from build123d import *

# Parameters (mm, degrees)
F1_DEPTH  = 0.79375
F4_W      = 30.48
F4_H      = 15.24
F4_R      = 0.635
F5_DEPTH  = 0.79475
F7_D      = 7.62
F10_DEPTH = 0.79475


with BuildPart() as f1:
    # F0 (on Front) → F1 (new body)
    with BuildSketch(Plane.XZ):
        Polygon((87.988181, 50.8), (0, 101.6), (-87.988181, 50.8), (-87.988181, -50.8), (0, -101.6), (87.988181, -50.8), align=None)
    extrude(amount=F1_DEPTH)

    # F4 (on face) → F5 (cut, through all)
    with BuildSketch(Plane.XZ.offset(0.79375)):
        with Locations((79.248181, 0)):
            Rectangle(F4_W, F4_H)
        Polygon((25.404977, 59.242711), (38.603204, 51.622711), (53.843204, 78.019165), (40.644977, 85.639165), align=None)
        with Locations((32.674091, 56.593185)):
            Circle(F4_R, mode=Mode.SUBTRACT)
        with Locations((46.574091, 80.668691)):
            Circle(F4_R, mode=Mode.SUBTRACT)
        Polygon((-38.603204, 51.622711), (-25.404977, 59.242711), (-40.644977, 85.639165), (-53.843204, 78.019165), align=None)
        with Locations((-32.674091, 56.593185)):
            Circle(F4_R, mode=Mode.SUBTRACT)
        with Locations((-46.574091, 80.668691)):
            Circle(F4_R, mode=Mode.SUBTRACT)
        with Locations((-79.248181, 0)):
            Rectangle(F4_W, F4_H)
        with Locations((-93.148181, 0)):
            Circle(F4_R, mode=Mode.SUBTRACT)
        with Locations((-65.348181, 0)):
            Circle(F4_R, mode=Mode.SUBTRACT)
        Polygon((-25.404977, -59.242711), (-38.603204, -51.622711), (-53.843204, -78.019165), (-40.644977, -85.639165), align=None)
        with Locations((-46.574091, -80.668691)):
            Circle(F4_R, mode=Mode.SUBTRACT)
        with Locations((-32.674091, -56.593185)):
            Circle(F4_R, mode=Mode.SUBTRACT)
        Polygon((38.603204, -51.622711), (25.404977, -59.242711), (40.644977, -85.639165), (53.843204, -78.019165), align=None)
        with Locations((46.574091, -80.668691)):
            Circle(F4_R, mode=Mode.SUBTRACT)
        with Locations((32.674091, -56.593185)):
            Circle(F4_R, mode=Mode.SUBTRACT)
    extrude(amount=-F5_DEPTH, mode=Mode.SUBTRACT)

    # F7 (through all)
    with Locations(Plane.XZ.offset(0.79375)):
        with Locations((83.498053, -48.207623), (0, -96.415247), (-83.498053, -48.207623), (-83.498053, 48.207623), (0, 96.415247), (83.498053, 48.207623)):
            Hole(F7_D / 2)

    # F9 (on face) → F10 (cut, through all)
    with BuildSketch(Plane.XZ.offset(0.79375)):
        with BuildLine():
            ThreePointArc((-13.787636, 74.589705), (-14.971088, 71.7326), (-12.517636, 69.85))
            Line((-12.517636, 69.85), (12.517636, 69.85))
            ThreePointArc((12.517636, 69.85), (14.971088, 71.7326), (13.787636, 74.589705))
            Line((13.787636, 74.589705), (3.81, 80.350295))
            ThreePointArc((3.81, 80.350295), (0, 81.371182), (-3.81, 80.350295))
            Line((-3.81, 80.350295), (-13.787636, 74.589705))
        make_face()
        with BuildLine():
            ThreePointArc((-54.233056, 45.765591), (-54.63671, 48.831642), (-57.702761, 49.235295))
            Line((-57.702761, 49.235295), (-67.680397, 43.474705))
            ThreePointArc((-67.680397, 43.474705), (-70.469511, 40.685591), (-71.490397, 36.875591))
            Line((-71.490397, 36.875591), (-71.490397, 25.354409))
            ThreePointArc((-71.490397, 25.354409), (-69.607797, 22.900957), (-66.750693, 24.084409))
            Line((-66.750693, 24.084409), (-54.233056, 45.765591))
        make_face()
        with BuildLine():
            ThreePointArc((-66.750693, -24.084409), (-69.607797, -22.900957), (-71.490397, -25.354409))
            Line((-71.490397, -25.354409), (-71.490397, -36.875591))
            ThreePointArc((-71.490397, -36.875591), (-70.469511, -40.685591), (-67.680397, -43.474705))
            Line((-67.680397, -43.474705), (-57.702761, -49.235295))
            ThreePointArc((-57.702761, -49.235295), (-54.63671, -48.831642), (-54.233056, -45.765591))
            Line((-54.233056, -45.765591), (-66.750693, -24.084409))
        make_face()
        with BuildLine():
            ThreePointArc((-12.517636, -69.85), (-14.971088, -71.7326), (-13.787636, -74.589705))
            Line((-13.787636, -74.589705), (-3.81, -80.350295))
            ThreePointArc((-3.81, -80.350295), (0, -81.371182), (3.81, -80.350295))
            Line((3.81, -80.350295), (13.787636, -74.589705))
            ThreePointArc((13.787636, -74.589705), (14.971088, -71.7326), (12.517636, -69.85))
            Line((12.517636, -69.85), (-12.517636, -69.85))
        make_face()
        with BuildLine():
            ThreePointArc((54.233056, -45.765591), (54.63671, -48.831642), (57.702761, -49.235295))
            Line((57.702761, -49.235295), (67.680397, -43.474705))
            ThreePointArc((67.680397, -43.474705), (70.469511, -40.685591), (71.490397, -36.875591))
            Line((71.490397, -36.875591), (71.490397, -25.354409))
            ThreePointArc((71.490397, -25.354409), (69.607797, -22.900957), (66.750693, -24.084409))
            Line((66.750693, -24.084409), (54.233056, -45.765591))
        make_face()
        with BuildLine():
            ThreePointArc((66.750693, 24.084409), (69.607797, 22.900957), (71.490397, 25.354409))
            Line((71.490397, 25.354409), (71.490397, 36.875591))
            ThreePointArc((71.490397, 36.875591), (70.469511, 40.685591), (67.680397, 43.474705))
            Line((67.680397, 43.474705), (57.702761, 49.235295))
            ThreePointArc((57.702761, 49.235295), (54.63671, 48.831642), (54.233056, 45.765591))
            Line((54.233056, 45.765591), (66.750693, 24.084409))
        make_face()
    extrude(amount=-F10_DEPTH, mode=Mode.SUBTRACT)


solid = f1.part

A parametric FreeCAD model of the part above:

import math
import FreeCAD as App
import Part
import Sketcher
Q = App.Units.Quantity

doc = App.newDocument("Part")
body = doc.addObject("PartDesign::Body", "Body")
body.AllowCompound = True

# Sketch on XZ plane
sketch1 = body.newObject("Sketcher::SketchObject", "Sketch")
sketch1.AttachmentSupport = (doc.getObject("XZ_Plane"), [""])
sketch1.MapMode = "FlatFace"
sketch1.addGeometry([
    Part.LineSegment(App.Vector(88, 51, 0), App.Vector(0, 102, 0)),  # 0
    Part.LineSegment(App.Vector(0, 102, 0), App.Vector(-88, 51, 0)),  # 1
    Part.LineSegment(App.Vector(-88, 51, 0), App.Vector(-88, -51, 0)),  # 2
    Part.LineSegment(App.Vector(-88, -51, 0), App.Vector(0, -102, 0)),  # 3
    Part.LineSegment(App.Vector(0, -102, 0), App.Vector(88, -51, 0)),  # 4
    Part.LineSegment(App.Vector(88, -51, 0), App.Vector(88, 51, 0)),  # 5
], False)
sketch1.addConstraint([
    Sketcher.Constraint("Coincident", 0, 2, 1, 1),
    Sketcher.Constraint("Coincident", 1, 2, 2, 1),
    Sketcher.Constraint("Coincident", 2, 2, 3, 1),
    Sketcher.Constraint("Coincident", 3, 2, 4, 1),
    Sketcher.Constraint("Coincident", 4, 2, 5, 1),
    Sketcher.Constraint("Coincident", 5, 2, 0, 1),
    Sketcher.Constraint("Vertical", 2),
    Sketcher.Constraint("Vertical", 5),
    Sketcher.Constraint("Symmetric", 0, 2, 3, 2, -1, 1),
    Sketcher.Constraint("Symmetric", 1, 2, 4, 2, -1, 1),
    Sketcher.Constraint("PointOnObject", 0, 2, -2),
    Sketcher.Constraint("Parallel", 0, 3),
    Sketcher.Constraint("Horizontal", 2, 2, 4, 2),
    Sketcher.Constraint("DistanceY", 2, 2, 2, 1, Q("4 in")),
    Sketcher.Constraint("Distance", 0, Q("4 in")),
    Sketcher.Constraint("DistanceY", -1, 1, 0, 2, Q("4 in")),
])
pad1 = body.newObject("PartDesign::Pad", "Pad")
pad1.Profile = sketch1
pad1.Length = Q("0.03125 in")

# Sketch on XZ plane
sketch2 = body.newObject("Sketcher::SketchObject", "Sketch001")
sketch2.AttachmentSupport = (doc.getObject("XZ_Plane"), [""])
sketch2.MapMode = "FlatFace"
sketch2.AttachmentOffset = App.Placement(App.Vector(0, 0, 0.03125 * 25.4), App.Rotation())
sketch2.addGeometry([
    Part.LineSegment(App.Vector(64, 7.6, 0), App.Vector(64, -7.6, 0)),  # 0
    Part.LineSegment(App.Vector(64, -7.6, 0), App.Vector(94.5, -7.6, 0)),  # 1
    Part.LineSegment(App.Vector(94.5, -7.6, 0), App.Vector(94.5, 7.6, 0)),  # 2
    Part.LineSegment(App.Vector(94.5, 7.6, 0), App.Vector(64, 7.6, 0)),  # 3
    Part.LineSegment(App.Vector(25.4, 59.2, 0), App.Vector(38.6, 51.6, 0)),  # 4
    Part.LineSegment(App.Vector(38.6, 51.6, 0), App.Vector(53.8, 78, 0)),  # 5
    Part.LineSegment(App.Vector(53.8, 78, 0), App.Vector(40.6, 85.6, 0)),  # 6
    Part.LineSegment(App.Vector(40.6, 85.6, 0), App.Vector(25.4, 59.2, 0)),  # 7
    Part.Circle(App.Vector(32.7, 56.6, 0), App.Vector(0, 0, 1), 0.6),  # 8
    Part.Circle(App.Vector(46.6, 80.7, 0), App.Vector(0, 0, 1), 0.6),  # 9
    Part.LineSegment(App.Vector(-38.6, 51.6, 0), App.Vector(-25.4, 59.2, 0)),  # 10
    Part.LineSegment(App.Vector(-25.4, 59.2, 0), App.Vector(-40.6, 85.6, 0)),  # 11
    Part.LineSegment(App.Vector(-40.6, 85.6, 0), App.Vector(-53.8, 78, 0)),  # 12
    Part.LineSegment(App.Vector(-53.8, 78, 0), App.Vector(-38.6, 51.6, 0)),  # 13
    Part.Circle(App.Vector(-32.7, 56.6, 0), App.Vector(0, 0, 1), 0.6),  # 14
    Part.Circle(App.Vector(-46.6, 80.7, 0), App.Vector(0, 0, 1), 0.6),  # 15
    Part.LineSegment(App.Vector(-94.5, 7.6, 0), App.Vector(-94.5, -7.6, 0)),  # 16
    Part.LineSegment(App.Vector(-94.5, -7.6, 0), App.Vector(-64, -7.6, 0)),  # 17
    Part.LineSegment(App.Vector(-64, -7.6, 0), App.Vector(-64, 7.6, 0)),  # 18
    Part.LineSegment(App.Vector(-64, 7.6, 0), App.Vector(-94.5, 7.6, 0)),  # 19
    Part.Circle(App.Vector(-93.1, 0, 0), App.Vector(0, 0, 1), 0.6),  # 20
    Part.Circle(App.Vector(-65.3, 0, 0), App.Vector(0, 0, 1), 0.6),  # 21
    Part.LineSegment(App.Vector(-25.4, -59.2, 0), App.Vector(-38.6, -51.6, 0)),  # 22
    Part.LineSegment(App.Vector(-38.6, -51.6, 0), App.Vector(-53.8, -78, 0)),  # 23
    Part.LineSegment(App.Vector(-53.8, -78, 0), App.Vector(-40.6, -85.6, 0)),  # 24
    Part.LineSegment(App.Vector(-40.6, -85.6, 0), App.Vector(-25.4, -59.2, 0)),  # 25
    Part.Circle(App.Vector(-46.6, -80.7, 0), App.Vector(0, 0, 1), 0.6),  # 26
    Part.Circle(App.Vector(-32.7, -56.6, 0), App.Vector(0, 0, 1), 0.6),  # 27
    Part.LineSegment(App.Vector(38.6, -51.6, 0), App.Vector(25.4, -59.2, 0)),  # 28
    Part.LineSegment(App.Vector(25.4, -59.2, 0), App.Vector(40.6, -85.6, 0)),  # 29
    Part.LineSegment(App.Vector(40.6, -85.6, 0), App.Vector(53.8, -78, 0)),  # 30
    Part.LineSegment(App.Vector(53.8, -78, 0), App.Vector(38.6, -51.6, 0)),  # 31
    Part.Circle(App.Vector(46.6, -80.7, 0), App.Vector(0, 0, 1), 0.6),  # 32
    Part.Circle(App.Vector(32.7, -56.6, 0), App.Vector(0, 0, 1), 0.6),  # 33
], False)
sketch2.addConstraint([
    Sketcher.Constraint("Coincident", 0, 2, 1, 1),
    Sketcher.Constraint("Coincident", 1, 2, 2, 1),
    Sketcher.Constraint("Coincident", 2, 2, 3, 1),
    Sketcher.Constraint("Coincident", 3, 2, 0, 1),
    Sketcher.Constraint("Coincident", 4, 2, 5, 1),
    Sketcher.Constraint("Coincident", 5, 2, 6, 1),
    Sketcher.Constraint("Coincident", 6, 2, 7, 1),
    Sketcher.Constraint("Coincident", 7, 2, 4, 1),
    Sketcher.Constraint("Coincident", 10, 2, 11, 1),
    Sketcher.Constraint("Coincident", 11, 2, 12, 1),
    Sketcher.Constraint("Coincident", 12, 2, 13, 1),
    Sketcher.Constraint("Coincident", 13, 2, 10, 1),
    Sketcher.Constraint("Coincident", 16, 2, 17, 1),
    Sketcher.Constraint("Coincident", 17, 2, 18, 1),
    Sketcher.Constraint("Coincident", 18, 2, 19, 1),
    Sketcher.Constraint("Coincident", 19, 2, 16, 1),
    Sketcher.Constraint("Coincident", 22, 2, 23, 1),
    Sketcher.Constraint("Coincident", 23, 2, 24, 1),
    Sketcher.Constraint("Coincident", 24, 2, 25, 1),
    Sketcher.Constraint("Coincident", 25, 2, 22, 1),
    Sketcher.Constraint("Coincident", 28, 2, 29, 1),
    Sketcher.Constraint("Coincident", 29, 2, 30, 1),
    Sketcher.Constraint("Coincident", 30, 2, 31, 1),
    Sketcher.Constraint("Coincident", 31, 2, 28, 1),
    Sketcher.Constraint("Vertical", 0),
    Sketcher.Constraint("Horizontal", 1),
    Sketcher.Constraint("Vertical", 2),
    Sketcher.Constraint("Horizontal", 3),
    Sketcher.Constraint("Vertical", 16),
    Sketcher.Constraint("Horizontal", 17),
    Sketcher.Constraint("Vertical", 18),
    Sketcher.Constraint("Horizontal", 19),
    Sketcher.Constraint("Equal", 8, 9),
    Sketcher.Constraint("Equal", 9, 14),
    Sketcher.Constraint("Equal", 14, 15),
    Sketcher.Constraint("Equal", 15, 20),
    Sketcher.Constraint("Equal", 20, 21),
    Sketcher.Constraint("Equal", 21, 26),
    Sketcher.Constraint("Equal", 26, 27),
    Sketcher.Constraint("Equal", 27, 32),
    Sketcher.Constraint("Equal", 32, 33),
    Sketcher.Constraint("Symmetric", 9, 3, 26, 3, -1, 1),
    Sketcher.Constraint("Symmetric", 8, 3, 27, 3, -1, 1),
    Sketcher.Constraint("Symmetric", 15, 3, 32, 3, -1, 1),
    Sketcher.Constraint("Symmetric", 14, 3, 33, 3, -1, 1),
    Sketcher.Constraint("Symmetric", 2, 2, 16, 2, -1, 1),
    Sketcher.Constraint("Symmetric", 0, 2, 18, 2, -1, 1),
    Sketcher.Constraint("Symmetric", 4, 2, 22, 2, -1, 1),
    Sketcher.Constraint("Symmetric", 5, 2, 23, 2, -1, 1),
    Sketcher.Constraint("Symmetric", 6, 2, 24, 2, -1, 1),
    Sketcher.Constraint("Symmetric", 7, 2, 25, 2, -1, 1),
    Sketcher.Constraint("Symmetric", 10, 2, 28, 2, -1, 1),
    Sketcher.Constraint("Symmetric", 11, 2, 29, 2, -1, 1),
    Sketcher.Constraint("Symmetric", 12, 2, 30, 2, -1, 1),
    Sketcher.Constraint("Symmetric", 13, 2, 31, 2, -1, 1),
    Sketcher.Constraint("Symmetric", 8, 3, 14, 3, -2),
    Sketcher.Constraint("Symmetric", 9, 3, 15, 3, -2),
    Sketcher.Constraint("Symmetric", 7, 2, 10, 2, -2),
    Sketcher.Constraint("Symmetric", 6, 2, 11, 2, -2),
    Sketcher.Constraint("Symmetric", 5, 2, 12, 2, -2),
    Sketcher.Constraint("Symmetric", 4, 2, 13, 2, -2),
    Sketcher.Constraint("PointOnObject", 20, 3, -1),
    Sketcher.Constraint("PointOnObject", 21, 3, -1),
    Sketcher.Constraint("Perpendicular", 4, 5),
    Sketcher.Constraint("Perpendicular", 5, 6),
    Sketcher.Constraint("Perpendicular", 6, 7),
    Sketcher.Constraint("Horizontal", 1, 2, 16, 2),
    Sketcher.Constraint("Diameter", 8, Q("0.05 in")),
    Sketcher.Constraint("DistanceX", 1, 1, 1, 2, Q("1.2 in")),
    Sketcher.Constraint("DistanceY", 0, 2, 0, 1, Q("0.6 in")),
    Sketcher.Constraint("Angle", 4, Q("-30 deg")),
    Sketcher.Constraint("Distance", 4, Q("0.6 in")),
    Sketcher.Constraint("Distance", 5, Q("1.2 in")),
    Sketcher.Constraint("DistanceX", 8, 3, 9, 3, Q("13.9 mm")),
    Sketcher.Constraint("DistanceX", 20, 3, 21, 3, Q("27.8 mm")),
    Sketcher.Constraint("DistanceX", 16, 2, 20, 3, Q("1.34 mm")),
    Sketcher.Constraint("DistanceX", -1, 1, 8, 3, Q("32.674091 mm")),
    Sketcher.Constraint("DistanceY", -1, 1, 9, 3, Q("80.668691 mm")),
    Sketcher.Constraint("DistanceX", 20, 3, -1, 1, Q("93.148181 mm")),
    Sketcher.Constraint("DistanceY", -1, 1, 4, 2, Q("51.622711 mm")),
    Sketcher.Constraint("DistanceY", 27, 3, 14, 3, Q("113.18637 mm")),
    Sketcher.Constraint("DistanceX", 10, 2, 4, 2, Q("64.008181 mm")),
])
pocket1 = body.newObject("PartDesign::Pocket", "Pocket")
pocket1.Profile = sketch2
pocket1.Type = "ThroughAll"

# Sketch on XZ plane
sketch3 = body.newObject("Sketcher::SketchObject", "Sketch002")
sketch3.AttachmentSupport = (doc.getObject("XZ_Plane"), [""])
sketch3.MapMode = "FlatFace"
sketch3.AttachmentOffset = App.Placement(App.Vector(0, 0, 0.03125 * 25.4), App.Rotation())
sketch3.addGeometry([
    Part.Circle(App.Vector(83.5, -48.2, 0), App.Vector(0, 0, 1), 3.8),  # 0
    Part.Circle(App.Vector(0, -96.4, 0), App.Vector(0, 0, 1), 3.8),  # 1
    Part.Circle(App.Vector(-83.5, -48.2, 0), App.Vector(0, 0, 1), 3.8),  # 2
    Part.Circle(App.Vector(-83.5, 48.2, 0), App.Vector(0, 0, 1), 3.8),  # 3
    Part.Circle(App.Vector(0, 96.4, 0), App.Vector(0, 0, 1), 3.8),  # 4
    Part.Circle(App.Vector(83.5, 48.2, 0), App.Vector(0, 0, 1), 3.8),  # 5
], False)
sketch3.addConstraint([
    Sketcher.Constraint("Equal", 0, 1),
    Sketcher.Constraint("Equal", 1, 2),
    Sketcher.Constraint("Equal", 2, 3),
    Sketcher.Constraint("Equal", 3, 4),
    Sketcher.Constraint("Equal", 4, 5),
    Sketcher.Constraint("Symmetric", 0, 3, 3, 3, -1, 1),
    Sketcher.Constraint("Symmetric", 1, 3, 4, 3, -1, 1),
    Sketcher.Constraint("Symmetric", 2, 3, 5, 3, -1, 1),
    Sketcher.Constraint("Symmetric", 0, 3, 2, 3, -2),
    Sketcher.Constraint("PointOnObject", 1, 3, -2),
    Sketcher.Constraint("Diameter", 0, Q("0.3 in")),
    Sketcher.Constraint("DistanceY", 1, 3, 3, 3, Q("144.62287 mm")),
    Sketcher.Constraint("DistanceX", -1, 1, 0, 3, Q("83.498053 mm")),
    Sketcher.Constraint("DistanceY", 0, 3, -1, 1, Q("48.207623 mm")),
])
doc.recompute()
hole = body.newObject("PartDesign::Hole", "Hole")
hole.Profile = sketch3
hole.ThreadType = "None"
hole.Diameter = Q("0.3 in")
hole.DepthType = "ThroughAll"

# Sketch on XZ plane
sketch4 = body.newObject("Sketcher::SketchObject", "Sketch003")
sketch4.AttachmentSupport = (doc.getObject("XZ_Plane"), [""])
sketch4.MapMode = "FlatFace"
sketch4.AttachmentOffset = App.Placement(App.Vector(0, 0, 0.03125 * 25.4), App.Rotation())
sketch4.addGeometry([
    Part.ArcOfCircle(Part.Circle(App.Vector(-12.5, 72.4, 0), App.Vector(0, 0, 1), 2.5), math.radians(120), math.radians(270)),  # 0
    Part.LineSegment(App.Vector(-12.5, 69.8, 0), App.Vector(12.5, 69.8, 0)),  # 1
    Part.ArcOfCircle(Part.Circle(App.Vector(12.5, 72.4, 0), App.Vector(0, 0, 1), 2.5), math.radians(-90), math.radians(60)),  # 2
    Part.LineSegment(App.Vector(13.8, 74.6, 0), App.Vector(3.8, 80.4, 0)),  # 3
    Part.ArcOfCircle(Part.Circle(App.Vector(0, 73.8, 0), App.Vector(0, 0, 1), 7.6), math.radians(60), math.radians(120)),  # 4
    Part.LineSegment(App.Vector(-3.8, 80.4, 0), App.Vector(-13.8, 74.6, 0)),  # 5
    Part.ArcOfCircle(Part.Circle(App.Vector(-56.4, 47, 0), App.Vector(0, 0, 1), 2.5), math.radians(-30), math.radians(120)),  # 6
    Part.LineSegment(App.Vector(-57.7, 49.2, 0), App.Vector(-67.7, 43.5, 0)),  # 7
    Part.ArcOfCircle(Part.Circle(App.Vector(-63.9, 36.9, 0), App.Vector(0, 0, 1), 7.6), math.radians(120), math.radians(180)),  # 8
    Part.LineSegment(App.Vector(-71.5, 36.9, 0), App.Vector(-71.5, 25.4, 0)),  # 9
    Part.ArcOfCircle(Part.Circle(App.Vector(-69, 25.4, 0), App.Vector(0, 0, 1), 2.5), math.radians(180), math.radians(330)),  # 10
    Part.LineSegment(App.Vector(-66.8, 24.1, 0), App.Vector(-54.2, 45.8, 0)),  # 11
    Part.ArcOfCircle(Part.Circle(App.Vector(-69, -25.4, 0), App.Vector(0, 0, 1), 2.5), math.radians(30), math.radians(180)),  # 12
    Part.LineSegment(App.Vector(-71.5, -25.4, 0), App.Vector(-71.5, -36.9, 0)),  # 13
    Part.ArcOfCircle(Part.Circle(App.Vector(-63.9, -36.9, 0), App.Vector(0, 0, 1), 7.6), math.radians(180), math.radians(240)),  # 14
    Part.LineSegment(App.Vector(-67.7, -43.5, 0), App.Vector(-57.7, -49.2, 0)),  # 15
    Part.ArcOfCircle(Part.Circle(App.Vector(-56.4, -47, 0), App.Vector(0, 0, 1), 2.5), math.radians(-120), math.radians(30)),  # 16
    Part.LineSegment(App.Vector(-54.2, -45.8, 0), App.Vector(-66.8, -24.1, 0)),  # 17
    Part.ArcOfCircle(Part.Circle(App.Vector(-12.5, -72.4, 0), App.Vector(0, 0, 1), 2.5), math.radians(90), math.radians(240)),  # 18
    Part.LineSegment(App.Vector(-13.8, -74.6, 0), App.Vector(-3.8, -80.4, 0)),  # 19
    Part.ArcOfCircle(Part.Circle(App.Vector(0, -73.8, 0), App.Vector(0, 0, 1), 7.6), math.radians(-120), math.radians(-60)),  # 20
    Part.LineSegment(App.Vector(3.8, -80.4, 0), App.Vector(13.8, -74.6, 0)),  # 21
    Part.ArcOfCircle(Part.Circle(App.Vector(12.5, -72.4, 0), App.Vector(0, 0, 1), 2.5), math.radians(-60), math.radians(90)),  # 22
    Part.LineSegment(App.Vector(12.5, -69.8, 0), App.Vector(-12.5, -69.8, 0)),  # 23
    Part.ArcOfCircle(Part.Circle(App.Vector(56.4, -47, 0), App.Vector(0, 0, 1), 2.5), math.radians(150), math.radians(300)),  # 24
    Part.LineSegment(App.Vector(57.7, -49.2, 0), App.Vector(67.7, -43.5, 0)),  # 25
    Part.ArcOfCircle(Part.Circle(App.Vector(63.9, -36.9, 0), App.Vector(0, 0, 1), 7.6), math.radians(-60), math.radians(0)),  # 26
    Part.LineSegment(App.Vector(71.5, -36.9, 0), App.Vector(71.5, -25.4, 0)),  # 27
    Part.ArcOfCircle(Part.Circle(App.Vector(69, -25.4, 0), App.Vector(0, 0, 1), 2.5), math.radians(0), math.radians(150)),  # 28
    Part.LineSegment(App.Vector(66.8, -24.1, 0), App.Vector(54.2, -45.8, 0)),  # 29
    Part.ArcOfCircle(Part.Circle(App.Vector(69, 25.4, 0), App.Vector(0, 0, 1), 2.5), math.radians(-150), math.radians(0)),  # 30
    Part.LineSegment(App.Vector(71.5, 25.4, 0), App.Vector(71.5, 36.9, 0)),  # 31
    Part.ArcOfCircle(Part.Circle(App.Vector(63.9, 36.9, 0), App.Vector(0, 0, 1), 7.6), math.radians(0), math.radians(60)),  # 32
    Part.LineSegment(App.Vector(67.7, 43.5, 0), App.Vector(57.7, 49.2, 0)),  # 33
    Part.ArcOfCircle(Part.Circle(App.Vector(56.4, 47, 0), App.Vector(0, 0, 1), 2.5), math.radians(60), math.radians(210)),  # 34
    Part.LineSegment(App.Vector(54.2, 45.8, 0), App.Vector(66.8, 24.1, 0)),  # 35
], False)
sketch4.addConstraint([
    Sketcher.Constraint("Tangent", 0, 2, 1, 1),
    Sketcher.Constraint("Tangent", 1, 2, 2, 1),
    Sketcher.Constraint("Tangent", 2, 2, 3, 1),
    Sketcher.Constraint("Tangent", 3, 2, 4, 1),
    Sketcher.Constraint("Tangent", 4, 2, 5, 1),
    Sketcher.Constraint("Tangent", 5, 2, 0, 1),
    Sketcher.Constraint("Tangent", 6, 2, 7, 1),
    Sketcher.Constraint("Tangent", 7, 2, 8, 1),
    Sketcher.Constraint("Tangent", 8, 2, 9, 1),
    Sketcher.Constraint("Tangent", 9, 2, 10, 1),
    Sketcher.Constraint("Tangent", 10, 2, 11, 1),
    Sketcher.Constraint("Tangent", 11, 2, 6, 1),
    Sketcher.Constraint("Tangent", 12, 2, 13, 1),
    Sketcher.Constraint("Tangent", 13, 2, 14, 1),
    Sketcher.Constraint("Tangent", 14, 2, 15, 1),
    Sketcher.Constraint("Tangent", 15, 2, 16, 1),
    Sketcher.Constraint("Tangent", 16, 2, 17, 1),
    Sketcher.Constraint("Tangent", 17, 2, 12, 1),
    Sketcher.Constraint("Tangent", 18, 2, 19, 1),
    Sketcher.Constraint("Tangent", 19, 2, 20, 1),
    Sketcher.Constraint("Tangent", 20, 2, 21, 1),
    Sketcher.Constraint("Tangent", 21, 2, 22, 1),
    Sketcher.Constraint("Tangent", 22, 2, 23, 1),
    Sketcher.Constraint("Tangent", 23, 2, 18, 1),
    Sketcher.Constraint("Tangent", 24, 2, 25, 1),
    Sketcher.Constraint("Tangent", 25, 2, 26, 1),
    Sketcher.Constraint("Tangent", 26, 2, 27, 1),
    Sketcher.Constraint("Tangent", 27, 2, 28, 1),
    Sketcher.Constraint("Tangent", 28, 2, 29, 1),
    Sketcher.Constraint("Tangent", 29, 2, 24, 1),
    Sketcher.Constraint("Tangent", 30, 2, 31, 1),
    Sketcher.Constraint("Tangent", 31, 2, 32, 1),
    Sketcher.Constraint("Tangent", 32, 2, 33, 1),
    Sketcher.Constraint("Tangent", 33, 2, 34, 1),
    Sketcher.Constraint("Tangent", 34, 2, 35, 1),
    Sketcher.Constraint("Tangent", 35, 2, 30, 1),
    Sketcher.Constraint("Horizontal", 1),
    Sketcher.Constraint("Vertical", 9),
    Sketcher.Constraint("Vertical", 13),
    Sketcher.Constraint("Horizontal", 23),
    Sketcher.Constraint("Vertical", 27),
    Sketcher.Constraint("Vertical", 31),
    Sketcher.Constraint("Equal", 0, 2),
    Sketcher.Constraint("Equal", 2, 6),
    Sketcher.Constraint("Equal", 6, 10),
    Sketcher.Constraint("Equal", 10, 12),
    Sketcher.Constraint("Equal", 8, 14),
    Sketcher.Constraint("Equal", 12, 16),
    Sketcher.Constraint("Equal", 16, 18),
    Sketcher.Constraint("Equal", 4, 20),
    Sketcher.Constraint("Equal", 18, 22),
    Sketcher.Constraint("Equal", 22, 24),
    Sketcher.Constraint("Equal", 14, 26),
    Sketcher.Constraint("Equal", 24, 28),
    Sketcher.Constraint("Equal", 28, 30),
    Sketcher.Constraint("Equal", 26, 32),
    Sketcher.Constraint("Equal", 30, 34),
    Sketcher.Constraint("Symmetric", 2, 3, 18, 3, -1, 1),
    Sketcher.Constraint("Symmetric", 4, 3, 20, 3, -1, 1),
    Sketcher.Constraint("Symmetric", 6, 3, 24, 3, -1, 1),
    Sketcher.Constraint("Symmetric", 8, 3, 26, 3, -1, 1),
    Sketcher.Constraint("Symmetric", 12, 3, 30, 3, -1, 1),
    Sketcher.Constraint("Symmetric", 16, 3, 34, 3, -1, 1),
    Sketcher.Constraint("Symmetric", 16, 3, 24, 3, -2),
    Sketcher.Constraint("Symmetric", 14, 3, 26, 3, -2),
    Sketcher.Constraint("Symmetric", 3, 2, 4, 2, -2),
    Sketcher.Constraint("Parallel", 5, 7),
    Sketcher.Constraint("Perpendicular", 3, 11),
    Sketcher.Constraint("Perpendicular", 7, 17),
    Sketcher.Constraint("Perpendicular", 17, 21),
    Sketcher.Constraint("Perpendicular", 19, 29),
    Sketcher.Constraint("Perpendicular", 29, 33),
    Sketcher.Constraint("Equal", 5, 7),
    Sketcher.Constraint("Radius", 0, Q("0.1 in")),
    Sketcher.Constraint("Radius", 4, Q("0.2999999 in")),
    Sketcher.Constraint("Radius", 8, Q("0.3 in")),
    Sketcher.Constraint("Angle", 3, Q("150.000004 deg")),
    Sketcher.Constraint("DistanceY", 8, 3, 6, 3, Q("0.3999999 in")),
    Sketcher.Constraint("DistanceY", 13, 2, 10, 2, Q("2.4 in")),
    Sketcher.Constraint("DistanceY", -1, 1, 0, 3, Q("2.85 in")),
    Sketcher.Constraint("DistanceX", 8, 3, -1, 1, Q("63.870398 mm")),
])
pocket2 = body.newObject("PartDesign::Pocket", "Pocket001")
pocket2.Profile = sketch4
pocket2.Type = "ThroughAll"

doc.recompute()
